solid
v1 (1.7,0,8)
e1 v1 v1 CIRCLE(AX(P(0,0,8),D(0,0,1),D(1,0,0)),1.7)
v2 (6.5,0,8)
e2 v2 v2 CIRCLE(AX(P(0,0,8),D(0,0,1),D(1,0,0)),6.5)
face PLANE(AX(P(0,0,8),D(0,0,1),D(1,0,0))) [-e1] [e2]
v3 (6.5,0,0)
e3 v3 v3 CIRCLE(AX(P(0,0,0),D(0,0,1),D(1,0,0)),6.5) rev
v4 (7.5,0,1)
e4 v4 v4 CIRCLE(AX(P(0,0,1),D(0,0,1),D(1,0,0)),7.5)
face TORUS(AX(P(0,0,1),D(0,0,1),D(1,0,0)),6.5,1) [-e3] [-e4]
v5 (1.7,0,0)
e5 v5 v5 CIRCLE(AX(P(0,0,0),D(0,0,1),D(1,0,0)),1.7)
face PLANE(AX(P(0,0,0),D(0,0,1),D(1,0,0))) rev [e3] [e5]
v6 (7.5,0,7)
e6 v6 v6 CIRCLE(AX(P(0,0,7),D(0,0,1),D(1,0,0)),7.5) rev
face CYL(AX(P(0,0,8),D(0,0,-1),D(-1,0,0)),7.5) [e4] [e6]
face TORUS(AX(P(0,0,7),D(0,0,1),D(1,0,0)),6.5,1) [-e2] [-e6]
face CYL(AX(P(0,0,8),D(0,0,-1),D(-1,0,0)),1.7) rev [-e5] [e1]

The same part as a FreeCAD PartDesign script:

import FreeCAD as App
import Part
import Sketcher


def edges_at(feature, points):
    """Names of the edges that pass closest to the given points."""
    edges = feature.Shape.Edges
    near = lambda p: min(range(len(edges)), key=lambda i: edges[i].distToShape(Part.Vertex(*p))[0])
    return sorted({f"Edge{near(p) + 1}" for p in points})

doc = App.newDocument("Part")
body = doc.addObject("PartDesign::Body", "Body")

# Sketch on XY plane
sketch1 = body.newObject("Sketcher::SketchObject", "Sketch")
sketch1.AttachmentSupport = (doc.getObject("XY_Plane"), [""])
sketch1.MapMode = "FlatFace"
sketch1.addGeometry([
    Part.Circle(App.Vector(0, 0, 0), App.Vector(0, 0, 1), 7.5),
    Part.Circle(App.Vector(0, 0, 0), App.Vector(0, 0, 1), 1.7),
], False)
sketch1.addConstraint([
    Sketcher.Constraint("Coincident", 0, 3, -1, 1),
    Sketcher.Constraint("Coincident", 1, 3, -1, 1),
    Sketcher.Constraint("Diameter", 0, 15.0),
    Sketcher.Constraint("Diameter", 1, 3.4),
])
pad1 = body.newObject("PartDesign::Pad", "Pad")
pad1.Profile = sketch1
pad1.Length = 8
doc.recompute()

fillet = body.newObject("PartDesign::Fillet", "Fillet")
fillet.Base = (pad1, edges_at(pad1, [(-7.5, 0, 0), (-7.5, 0, 8)]))
fillet.Radius = 1

doc.recompute()
